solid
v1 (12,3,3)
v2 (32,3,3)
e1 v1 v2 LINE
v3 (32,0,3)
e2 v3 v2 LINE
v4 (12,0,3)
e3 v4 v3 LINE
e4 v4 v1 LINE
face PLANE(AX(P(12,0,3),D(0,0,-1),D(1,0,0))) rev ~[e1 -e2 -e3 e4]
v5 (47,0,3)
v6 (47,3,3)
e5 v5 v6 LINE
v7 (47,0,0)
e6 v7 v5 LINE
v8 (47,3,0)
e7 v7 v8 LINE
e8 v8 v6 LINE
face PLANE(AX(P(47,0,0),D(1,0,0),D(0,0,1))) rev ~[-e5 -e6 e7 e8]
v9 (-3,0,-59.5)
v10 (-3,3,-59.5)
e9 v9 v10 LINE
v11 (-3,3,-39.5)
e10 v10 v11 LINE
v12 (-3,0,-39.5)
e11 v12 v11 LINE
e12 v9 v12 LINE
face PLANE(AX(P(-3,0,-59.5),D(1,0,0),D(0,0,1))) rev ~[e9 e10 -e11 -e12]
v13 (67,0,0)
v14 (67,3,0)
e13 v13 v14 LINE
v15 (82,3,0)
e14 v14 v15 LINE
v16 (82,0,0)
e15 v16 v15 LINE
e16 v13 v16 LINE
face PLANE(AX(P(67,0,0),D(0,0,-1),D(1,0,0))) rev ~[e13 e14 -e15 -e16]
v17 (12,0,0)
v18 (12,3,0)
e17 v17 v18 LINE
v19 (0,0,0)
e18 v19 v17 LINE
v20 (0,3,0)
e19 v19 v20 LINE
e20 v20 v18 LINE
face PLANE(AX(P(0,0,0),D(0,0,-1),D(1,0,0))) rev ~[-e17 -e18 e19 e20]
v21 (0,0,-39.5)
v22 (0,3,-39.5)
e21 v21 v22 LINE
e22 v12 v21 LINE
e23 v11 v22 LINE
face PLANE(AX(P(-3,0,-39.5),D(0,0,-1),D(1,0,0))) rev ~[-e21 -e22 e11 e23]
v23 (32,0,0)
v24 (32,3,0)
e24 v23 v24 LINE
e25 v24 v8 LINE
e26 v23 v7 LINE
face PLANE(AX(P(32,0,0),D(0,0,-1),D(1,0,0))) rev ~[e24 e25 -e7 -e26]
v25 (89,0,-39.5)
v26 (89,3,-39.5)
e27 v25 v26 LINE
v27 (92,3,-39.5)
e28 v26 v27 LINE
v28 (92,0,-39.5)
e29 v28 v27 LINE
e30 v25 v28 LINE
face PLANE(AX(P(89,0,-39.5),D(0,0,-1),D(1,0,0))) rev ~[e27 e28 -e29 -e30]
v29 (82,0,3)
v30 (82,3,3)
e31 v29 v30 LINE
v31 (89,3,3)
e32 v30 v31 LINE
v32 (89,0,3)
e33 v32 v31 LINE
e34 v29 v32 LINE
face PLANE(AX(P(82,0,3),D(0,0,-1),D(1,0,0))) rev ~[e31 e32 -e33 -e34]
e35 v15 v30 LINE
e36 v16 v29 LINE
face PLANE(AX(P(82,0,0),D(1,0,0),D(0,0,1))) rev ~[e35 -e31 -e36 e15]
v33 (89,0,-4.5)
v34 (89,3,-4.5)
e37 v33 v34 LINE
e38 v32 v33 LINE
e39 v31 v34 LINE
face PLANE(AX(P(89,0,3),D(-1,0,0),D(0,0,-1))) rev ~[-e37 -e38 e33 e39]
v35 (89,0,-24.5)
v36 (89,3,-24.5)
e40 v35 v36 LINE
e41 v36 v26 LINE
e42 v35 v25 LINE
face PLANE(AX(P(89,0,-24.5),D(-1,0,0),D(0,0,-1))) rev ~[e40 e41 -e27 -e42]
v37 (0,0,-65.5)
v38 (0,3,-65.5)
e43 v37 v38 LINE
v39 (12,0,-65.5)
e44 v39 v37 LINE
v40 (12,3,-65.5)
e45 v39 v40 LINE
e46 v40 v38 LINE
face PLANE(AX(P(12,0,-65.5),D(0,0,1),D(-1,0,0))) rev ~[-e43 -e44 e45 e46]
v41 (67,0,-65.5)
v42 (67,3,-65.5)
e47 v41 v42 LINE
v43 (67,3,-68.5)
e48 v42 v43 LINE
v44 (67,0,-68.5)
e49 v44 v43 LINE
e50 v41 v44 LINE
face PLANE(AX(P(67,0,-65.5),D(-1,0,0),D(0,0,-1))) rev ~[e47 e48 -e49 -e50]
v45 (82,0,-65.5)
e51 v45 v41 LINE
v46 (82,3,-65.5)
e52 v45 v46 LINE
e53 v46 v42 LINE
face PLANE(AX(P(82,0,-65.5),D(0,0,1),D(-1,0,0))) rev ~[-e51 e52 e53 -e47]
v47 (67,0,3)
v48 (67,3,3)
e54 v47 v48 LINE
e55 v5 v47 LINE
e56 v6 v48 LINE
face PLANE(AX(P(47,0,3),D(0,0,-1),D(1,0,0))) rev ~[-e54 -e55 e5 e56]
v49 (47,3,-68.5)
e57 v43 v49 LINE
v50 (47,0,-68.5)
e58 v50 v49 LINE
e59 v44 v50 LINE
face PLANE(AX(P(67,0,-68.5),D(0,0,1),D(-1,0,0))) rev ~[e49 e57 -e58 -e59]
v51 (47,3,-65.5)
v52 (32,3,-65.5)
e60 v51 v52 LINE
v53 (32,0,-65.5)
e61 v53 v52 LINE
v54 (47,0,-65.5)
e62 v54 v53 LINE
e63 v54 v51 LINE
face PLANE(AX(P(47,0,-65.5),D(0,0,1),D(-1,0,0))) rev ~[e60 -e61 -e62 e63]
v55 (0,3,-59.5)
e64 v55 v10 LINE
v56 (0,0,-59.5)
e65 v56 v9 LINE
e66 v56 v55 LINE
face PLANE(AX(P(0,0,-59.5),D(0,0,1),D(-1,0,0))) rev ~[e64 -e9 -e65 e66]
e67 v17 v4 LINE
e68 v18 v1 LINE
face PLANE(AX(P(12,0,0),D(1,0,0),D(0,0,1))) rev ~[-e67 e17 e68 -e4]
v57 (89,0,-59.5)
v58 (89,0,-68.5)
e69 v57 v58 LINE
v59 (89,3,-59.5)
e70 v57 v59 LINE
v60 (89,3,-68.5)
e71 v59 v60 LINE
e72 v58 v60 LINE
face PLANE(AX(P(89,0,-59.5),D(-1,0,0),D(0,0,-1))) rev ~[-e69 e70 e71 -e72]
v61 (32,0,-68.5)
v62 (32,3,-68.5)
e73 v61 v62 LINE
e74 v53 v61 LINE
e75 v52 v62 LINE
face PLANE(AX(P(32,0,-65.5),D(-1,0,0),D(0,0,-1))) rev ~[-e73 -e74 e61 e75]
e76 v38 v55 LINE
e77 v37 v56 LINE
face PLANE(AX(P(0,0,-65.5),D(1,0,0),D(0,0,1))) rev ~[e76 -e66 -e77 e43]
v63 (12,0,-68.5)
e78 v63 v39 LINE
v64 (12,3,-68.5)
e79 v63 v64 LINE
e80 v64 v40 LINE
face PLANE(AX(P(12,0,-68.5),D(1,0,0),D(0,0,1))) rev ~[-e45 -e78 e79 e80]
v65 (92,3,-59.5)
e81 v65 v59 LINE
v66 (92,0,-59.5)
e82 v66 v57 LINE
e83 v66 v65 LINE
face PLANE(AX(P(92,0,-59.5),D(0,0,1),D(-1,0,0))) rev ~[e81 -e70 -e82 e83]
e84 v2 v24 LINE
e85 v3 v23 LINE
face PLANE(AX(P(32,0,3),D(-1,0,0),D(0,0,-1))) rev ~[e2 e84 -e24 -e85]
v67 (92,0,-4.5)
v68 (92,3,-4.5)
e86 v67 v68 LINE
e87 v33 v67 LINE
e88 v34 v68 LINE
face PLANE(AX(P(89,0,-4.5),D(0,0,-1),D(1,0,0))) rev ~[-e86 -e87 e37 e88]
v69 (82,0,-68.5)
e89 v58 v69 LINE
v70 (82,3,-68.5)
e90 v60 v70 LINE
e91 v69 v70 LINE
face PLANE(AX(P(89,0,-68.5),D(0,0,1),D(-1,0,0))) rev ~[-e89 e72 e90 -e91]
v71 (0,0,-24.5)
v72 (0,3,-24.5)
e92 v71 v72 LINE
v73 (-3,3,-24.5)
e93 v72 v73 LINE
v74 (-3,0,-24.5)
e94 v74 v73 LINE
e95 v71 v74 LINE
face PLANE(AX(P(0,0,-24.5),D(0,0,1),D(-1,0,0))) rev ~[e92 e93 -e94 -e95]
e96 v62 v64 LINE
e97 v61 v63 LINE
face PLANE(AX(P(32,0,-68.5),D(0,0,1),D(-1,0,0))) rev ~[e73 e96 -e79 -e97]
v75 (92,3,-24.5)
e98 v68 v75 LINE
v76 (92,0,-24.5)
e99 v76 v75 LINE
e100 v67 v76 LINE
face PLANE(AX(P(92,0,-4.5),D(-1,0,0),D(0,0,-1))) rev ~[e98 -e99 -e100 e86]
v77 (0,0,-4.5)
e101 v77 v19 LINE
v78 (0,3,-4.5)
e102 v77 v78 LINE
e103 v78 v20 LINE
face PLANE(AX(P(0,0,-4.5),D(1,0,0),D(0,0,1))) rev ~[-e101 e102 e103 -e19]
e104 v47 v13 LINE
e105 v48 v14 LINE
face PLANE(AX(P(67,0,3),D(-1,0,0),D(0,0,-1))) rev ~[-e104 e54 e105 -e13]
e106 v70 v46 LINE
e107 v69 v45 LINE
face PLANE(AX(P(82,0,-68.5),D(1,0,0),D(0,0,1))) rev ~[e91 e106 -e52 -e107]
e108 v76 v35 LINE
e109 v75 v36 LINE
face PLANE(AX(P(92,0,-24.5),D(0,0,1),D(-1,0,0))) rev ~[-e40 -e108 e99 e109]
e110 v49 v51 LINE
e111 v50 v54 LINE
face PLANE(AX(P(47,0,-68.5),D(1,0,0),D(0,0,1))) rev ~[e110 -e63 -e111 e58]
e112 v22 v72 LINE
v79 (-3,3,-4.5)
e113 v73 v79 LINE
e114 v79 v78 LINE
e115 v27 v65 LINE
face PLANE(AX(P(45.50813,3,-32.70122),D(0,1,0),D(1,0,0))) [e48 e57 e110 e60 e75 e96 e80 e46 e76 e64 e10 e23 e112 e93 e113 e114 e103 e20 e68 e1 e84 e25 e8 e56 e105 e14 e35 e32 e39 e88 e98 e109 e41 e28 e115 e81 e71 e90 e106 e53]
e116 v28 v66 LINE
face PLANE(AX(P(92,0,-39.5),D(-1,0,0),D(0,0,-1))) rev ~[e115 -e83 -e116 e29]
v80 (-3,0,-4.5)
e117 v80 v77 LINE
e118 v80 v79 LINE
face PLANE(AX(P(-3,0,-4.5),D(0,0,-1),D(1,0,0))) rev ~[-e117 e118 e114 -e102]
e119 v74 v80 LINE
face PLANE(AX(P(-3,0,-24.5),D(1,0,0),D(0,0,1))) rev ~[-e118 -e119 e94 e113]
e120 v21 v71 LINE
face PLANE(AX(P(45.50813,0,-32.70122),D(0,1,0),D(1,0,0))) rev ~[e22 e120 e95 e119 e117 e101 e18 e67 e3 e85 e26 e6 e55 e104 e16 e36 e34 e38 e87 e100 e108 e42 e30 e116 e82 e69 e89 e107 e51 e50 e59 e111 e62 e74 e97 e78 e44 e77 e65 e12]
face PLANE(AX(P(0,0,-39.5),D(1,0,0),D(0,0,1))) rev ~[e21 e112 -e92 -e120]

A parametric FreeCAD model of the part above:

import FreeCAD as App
import Part
import Sketcher
from FreeCAD import Vector
Q = App.Units.Quantity

doc = App.newDocument("Part")
params = doc.addObject("Spreadsheet::Sheet", "Params")
for row, (alias, value) in enumerate([
    ("sketch1_width", "12 mm"),
    ("sketch1_width2", "3 mm"),
    ("sketch1_width3", "20 mm"),
    ("sketch1_width4", "15 mm"),
    ("sketch1_width5", "7 mm"),
    ("pad1_length", "3 mm"),
], start=1):
    params.set(f"A{row}", alias)
    params.set(f"B{row}", "=" + value)
    params.setAlias(f"B{row}", alias)

body = doc.addObject("PartDesign::Body", "Body")

sketch1 = body.newObject("Sketcher::SketchObject", "Sketch")
sketch1.AttachmentSupport = (doc.getObject("XZ_Plane"), [""])
sketch1.MapMode = "FlatFace"
sketch1.addGeometry([
    Part.LineSegment(Vector(12, -65.5, 0), Vector(0, -65.5, 0)),
    Part.LineSegment(Vector(0, -65.5, 0), Vector(0, -59.5, 0)),
    Part.LineSegment(Vector(0, -59.5, 0), Vector(-3, -59.5, 0)),
    Part.LineSegment(Vector(-3, -59.5, 0), Vector(-3, -39.5, 0)),
    Part.LineSegment(Vector(-3, -39.5, 0), Vector(0, -39.5, 0)),
    Part.LineSegment(Vector(0, -39.5, 0), Vector(0, -24.5, 0)),
    Part.LineSegment(Vector(0, -24.5, 0), Vector(-3, -24.5, 0)),
    Part.LineSegment(Vector(-3, -24.5, 0), Vector(-3, -4.5, 0)),
    Part.LineSegment(Vector(-3, -4.5, 0), Vector(0, -4.5, 0)),
    Part.LineSegment(Vector(0, -4.5, 0), Vector(0, 0, 0)),
    Part.LineSegment(Vector(0, 0, 0), Vector(12, 0, 0)),
    Part.LineSegment(Vector(12, 0, 0), Vector(12, 3, 0)),
    Part.LineSegment(Vector(12, 3, 0), Vector(32, 3, 0)),
    Part.LineSegment(Vector(32, 3, 0), Vector(32, 0, 0)),
    Part.LineSegment(Vector(32, 0, 0), Vector(47, 0, 0)),
    Part.LineSegment(Vector(47, 0, 0), Vector(47, 3, 0)),
    Part.LineSegment(Vector(47, 3, 0), Vector(67, 3, 0)),
    Part.LineSegment(Vector(67, 3, 0), Vector(67, 0, 0)),
    Part.LineSegment(Vector(67, 0, 0), Vector(82, 0, 0)),
    Part.LineSegment(Vector(82, 0, 0), Vector(82, 3, 0)),
    Part.LineSegment(Vector(82, 3, 0), Vector(89, 3, 0)),
    Part.LineSegment(Vector(89, 3, 0), Vector(89, -4.5, 0)),
    Part.LineSegment(Vector(89, -4.5, 0), Vector(92, -4.5, 0)),
    Part.LineSegment(Vector(92, -4.5, 0), Vector(92, -24.5, 0)),
    Part.LineSegment(Vector(92, -24.5, 0), Vector(89, -24.5, 0)),
    Part.LineSegment(Vector(89, -24.5, 0), Vector(89, -39.5, 0)),
    Part.LineSegment(Vector(89, -39.5, 0), Vector(92, -39.5, 0)),
    Part.LineSegment(Vector(92, -39.5, 0), Vector(92, -59.5, 0)),
    Part.LineSegment(Vector(92, -59.5, 0), Vector(89, -59.5, 0)),
    Part.LineSegment(Vector(89, -59.5, 0), Vector(89, -68.5, 0)),
    Part.LineSegment(Vector(89, -68.5, 0), Vector(82, -68.5, 0)),
    Part.LineSegment(Vector(82, -68.5, 0), Vector(82, -65.5, 0)),
    Part.LineSegment(Vector(82, -65.5, 0), Vector(67, -65.5, 0)),
    Part.LineSegment(Vector(67, -65.5, 0), Vector(67, -68.5, 0)),
    Part.LineSegment(Vector(67, -68.5, 0), Vector(47, -68.5, 0)),
    Part.LineSegment(Vector(47, -68.5, 0), Vector(47, -65.5, 0)),
    Part.LineSegment(Vector(47, -65.5, 0), Vector(32, -65.5, 0)),
    Part.LineSegment(Vector(32, -65.5, 0), Vector(32, -68.5, 0)),
    Part.LineSegment(Vector(32, -68.5, 0), Vector(12, -68.5, 0)),
    Part.LineSegment(Vector(12, -68.5, 0), Vector(12, -65.5, 0)),
], False)
sketch1.addConstraint([
    Sketcher.Constraint("Coincident", 0, 2, 1, 1),
    Sketcher.Constraint("Coincident", 1, 2, 2, 1),
    Sketcher.Constraint("Coincident", 2, 2, 3, 1),
    Sketcher.Constraint("Coincident", 3, 2, 4, 1),
    Sketcher.Constraint("Coincident", 4, 2, 5, 1),
    Sketcher.Constraint("Coincident", 5, 2, 6, 1),
    Sketcher.Constraint("Coincident", 6, 2, 7, 1),
    Sketcher.Constraint("Coincident", 7, 2, 8, 1),
    Sketcher.Constraint("Coincident", 8, 2, 9, 1),
    Sketcher.Constraint("Coincident", 9, 2, 10, 1),
    Sketcher.Constraint("Coincident", 10, 2, 11, 1),
    Sketcher.Constraint("Coincident", 11, 2, 12, 1),
    Sketcher.Constraint("Coincident", 12, 2, 13, 1),
    Sketcher.Constraint("Coincident", 13, 2, 14, 1),
    Sketcher.Constraint("Coincident", 14, 2, 15, 1),
    Sketcher.Constraint("Coincident", 15, 2, 16, 1),
    Sketcher.Constraint("Coincident", 16, 2, 17, 1),
    Sketcher.Constraint("Coincident", 17, 2, 18, 1),
    Sketcher.Constraint("Coincident", 18, 2, 19, 1),
    Sketcher.Constraint("Coincident", 19, 2, 20, 1),
    Sketcher.Constraint("Coincident", 20, 2, 21, 1),
    Sketcher.Constraint("Coincident", 21, 2, 22, 1),
    Sketcher.Constraint("Coincident", 22, 2, 23, 1),
    Sketcher.Constraint("Coincident", 23, 2, 24, 1),
    Sketcher.Constraint("Coincident", 24, 2, 25, 1),
    Sketcher.Constraint("Coincident", 25, 2, 26, 1),
    Sketcher.Constraint("Coincident", 26, 2, 27, 1),
    Sketcher.Constraint("Coincident", 27, 2, 28, 1),
    Sketcher.Constraint("Coincident", 28, 2, 29, 1),
    Sketcher.Constraint("Coincident", 29, 2, 30, 1),
    Sketcher.Constraint("Coincident", 30, 2, 31, 1),
    Sketcher.Constraint("Coincident", 31, 2, 32, 1),
    Sketcher.Constraint("Coincident", 32, 2, 33, 1),
    Sketcher.Constraint("Coincident", 33, 2, 34, 1),
    Sketcher.Constraint("Coincident", 34, 2, 35, 1),
    Sketcher.Constraint("Coincident", 35, 2, 36, 1),
    Sketcher.Constraint("Coincident", 36, 2, 37, 1),
    Sketcher.Constraint("Coincident", 37, 2, 38, 1),
    Sketcher.Constraint("Coincident", 38, 2, 39, 1),
    Sketcher.Constraint("Coincident", 39, 2, 0, 1),
    Sketcher.Constraint("Horizontal", 0),
    Sketcher.Constraint("Vertical", 1),
    Sketcher.Constraint("Horizontal", 2),
    Sketcher.Constraint("Vertical", 3),
    Sketcher.Constraint("Horizontal", 4),
    Sketcher.Constraint("Vertical", 5),
    Sketcher.Constraint("Horizontal", 6),
    Sketcher.Constraint("Vertical", 7),
    Sketcher.Constraint("Horizontal", 8),
    Sketcher.Constraint("Vertical", 9),
    Sketcher.Constraint("Horizontal", 10),
    Sketcher.Constraint("Vertical", 11),
    Sketcher.Constraint("Horizontal", 12),
    Sketcher.Constraint("Vertical", 13),
    Sketcher.Constraint("Horizontal", 14),
    Sketcher.Constraint("Vertical", 15),
    Sketcher.Constraint("Horizontal", 16),
    Sketcher.Constraint("Vertical", 17),
    Sketcher.Constraint("Horizontal", 18),
    Sketcher.Constraint("Vertical", 19),
    Sketcher.Constraint("Horizontal", 20),
    Sketcher.Constraint("Vertical", 21),
    Sketcher.Constraint("Horizontal", 22),
    Sketcher.Constraint("Vertical", 23),
    Sketcher.Constraint("Horizontal", 24),
    Sketcher.Constraint("Vertical", 25),
    Sketcher.Constraint("Horizontal", 26),
    Sketcher.Constraint("Vertical", 27),
    Sketcher.Constraint("Horizontal", 28),
    Sketcher.Constraint("Vertical", 29),
    Sketcher.Constraint("Horizontal", 30),
    Sketcher.Constraint("Vertical", 31),
    Sketcher.Constraint("Horizontal", 32),
    Sketcher.Constraint("Vertical", 33),
    Sketcher.Constraint("Horizontal", 34),
    Sketcher.Constraint("Vertical", 35),
    Sketcher.Constraint("Horizontal", 36),
    Sketcher.Constraint("Vertical", 37),
    Sketcher.Constraint("Horizontal", 38),
    Sketcher.Constraint("Vertical", 39),
    Sketcher.Constraint("Coincident", 9, 2, -1, 1),
    Sketcher.Constraint("PointOnObject", 0, 2, -2),
    Sketcher.Constraint("PointOnObject", 4, 2, -2),
    Sketcher.Constraint("PointOnObject", 13, 2, -1),
    Sketcher.Constraint("PointOnObject", 17, 2, -1),
    Sketcher.Constraint("Horizontal", 12, 2, 15, 2),
    Sketcher.Constraint("Horizontal", 16, 2, 19, 2),
    Sketcher.Constraint("Horizontal", 8, 2, 21, 2),
    Sketcher.Constraint("Horizontal", 6, 2, 23, 2),
    Sketcher.Constraint("Horizontal", 4, 2, 25, 2),
    Sketcher.Constraint("Horizontal", 2, 2, 27, 2),
    Sketcher.Constraint("Horizontal", 0, 2, 31, 2),
    Sketcher.Constraint("Horizontal", 30, 2, 33, 2),
    Sketcher.Constraint("Horizontal", 32, 2, 35, 2),
    Sketcher.Constraint("Horizontal", 34, 2, 37, 2),
    Sketcher.Constraint("Vertical", 3, 2, 6, 2),
    Sketcher.Constraint("Vertical", 21, 2, 24, 2),
    Sketcher.Constraint("Vertical", 23, 2, 26, 2),
    Sketcher.Constraint("Vertical", 25, 2, 28, 2),
    Sketcher.Constraint("Vertical", 19, 2, 30, 2),
    Sketcher.Constraint("Vertical", 17, 2, 32, 2),
    Sketcher.Constraint("Vertical", 15, 2, 34, 2),
    Sketcher.Constraint("Vertical", 13, 2, 36, 2),
    Sketcher.Constraint("Vertical", 11, 2, 38, 2),
    Sketcher.Constraint("Equal", 12, 16),
    Sketcher.Constraint("Equal", 14, 18),
    Sketcher.Constraint("Equal", 8, 22),
    Sketcher.Constraint("Equal", 38, 3),
    Sketcher.Constraint("Equal", 36, 5),
    Sketcher.Constraint("Equal", 3, 7),
    Sketcher.Constraint("Equal", 28, 11),
    Sketcher.Constraint("Equal", 19, 31),
    Sketcher.Constraint("DistanceX", 0, 2, 0, 1, Q("12 mm")),
    Sketcher.Constraint("DistanceX", 2, 2, 2, 1, Q("3 mm")),
    Sketcher.Constraint("DistanceX", 12, 1, 12, 2, Q("20 mm")),
    Sketcher.Constraint("DistanceX", 14, 1, 14, 2, Q("15 mm")),
    Sketcher.Constraint("DistanceX", 20, 1, 20, 2, Q("7 mm")),
    Sketcher.Constraint("DistanceY", 1, 1, 1, 2, Q("6 mm")),
    Sketcher.Constraint("DistanceY", 9, 1, 9, 2, Q("4.5 mm")),
])
sketch1.setExpression("Constraints[112]", "Params.sketch1_width")
sketch1.setExpression("Constraints[113]", "Params.sketch1_width2")
sketch1.setExpression("Constraints[114]", "Params.sketch1_width3")
sketch1.setExpression("Constraints[115]", "Params.sketch1_width4")
sketch1.setExpression("Constraints[116]", "Params.sketch1_width5")
pad1 = body.newObject("PartDesign::Pad", "Pad")
pad1.Profile = sketch1
pad1.setExpression("Length", "Params.pad1_length")
pad1.Reversed = True

doc.recompute()
